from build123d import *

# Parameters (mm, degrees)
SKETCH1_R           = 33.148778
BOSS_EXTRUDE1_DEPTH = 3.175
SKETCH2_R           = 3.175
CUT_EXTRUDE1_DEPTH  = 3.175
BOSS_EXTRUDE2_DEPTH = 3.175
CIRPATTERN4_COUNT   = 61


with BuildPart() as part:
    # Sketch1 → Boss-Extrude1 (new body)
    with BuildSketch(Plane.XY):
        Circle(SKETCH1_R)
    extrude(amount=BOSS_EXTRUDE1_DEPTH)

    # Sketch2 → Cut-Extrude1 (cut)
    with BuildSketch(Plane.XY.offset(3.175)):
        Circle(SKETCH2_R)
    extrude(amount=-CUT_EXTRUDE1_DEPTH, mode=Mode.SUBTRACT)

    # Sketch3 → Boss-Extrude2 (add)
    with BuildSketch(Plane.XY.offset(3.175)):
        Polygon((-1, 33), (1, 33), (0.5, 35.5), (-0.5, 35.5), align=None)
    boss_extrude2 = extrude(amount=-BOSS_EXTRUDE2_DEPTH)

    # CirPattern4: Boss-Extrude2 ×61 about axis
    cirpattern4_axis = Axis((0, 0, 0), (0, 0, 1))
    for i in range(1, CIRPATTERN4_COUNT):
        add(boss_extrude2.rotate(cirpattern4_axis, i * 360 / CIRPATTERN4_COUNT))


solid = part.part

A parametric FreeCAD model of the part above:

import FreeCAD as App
import Part
import Sketcher

V = App.Vector
Q = App.Units.Quantity


def add_polygon(sketch, points):
    """Adds a closed chain of lines whose ends are joined by coincident constraints."""
    first, n = sketch.GeometryCount, len(points)
    for a, b in zip(points, points[1:] + points[:1]):
        sketch.addGeometry(Part.LineSegment(App.Vector(*a, 0), App.Vector(*b, 0)), False)
    for i in range(n):
        sketch.addConstraint(Sketcher.Constraint("Coincident", first + i, 2, first + (i + 1) % n, 1))

doc = App.newDocument("Part")
body = doc.addObject("PartDesign::Body", "Body")

# Sketch on XY plane
sketch1 = doc.addObject("Sketcher::SketchObject", "Sketch")
body.addObject(sketch1)
sketch1.AttachmentSupport = (doc.XY_Plane, [""])
sketch1.MapMode = "FlatFace"
sketch1.addGeometry(Part.Circle(V(0, 0, 0), V(0, 0, 1), 33), False)
sketch1.addConstraint(Sketcher.Constraint("Coincident", 0, 3, -1, 1))
sketch1.addConstraint(Sketcher.Constraint("Diameter", 0, Q("66.297556 mm")))
pad1 = doc.addObject("PartDesign::Pad", "Pad")
body.addObject(pad1)
pad1.Profile = sketch1
pad1.Length = 3.175

# Sketch on XY plane
sketch2 = doc.addObject("Sketcher::SketchObject", "Sketch001")
body.addObject(sketch2)
sketch2.AttachmentSupport = (doc.XY_Plane, [""])
sketch2.MapMode = "FlatFace"
sketch2.AttachmentOffset = App.Placement(V(0, 0, 3.175), App.Rotation())
sketch2.addGeometry(Part.Circle(V(0, 0, 0), V(0, 0, 1), 3.2), False)
sketch2.addConstraint(Sketcher.Constraint("Coincident", 0, 3, -1, 1))
sketch2.addConstraint(Sketcher.Constraint("Diameter", 0, Q("6.35 mm")))
pocket1 = doc.addObject("PartDesign::Pocket", "Pocket")
body.addObject(pocket1)
pocket1.Profile = sketch2
pocket1.Length = 3.175

# Sketch on XY plane
sketch3 = doc.addObject("Sketcher::SketchObject", "Sketch002")
body.addObject(sketch3)
sketch3.AttachmentSupport = (doc.XY_Plane, [""])
sketch3.MapMode = "FlatFace"
sketch3.AttachmentOffset = App.Placement(V(0, 0, 3.175), App.Rotation())
add_polygon(sketch3, [(-1, 33), (1, 33), (0.5, 35.5), (-0.5, 35.5)])  # lines 0-3
sketch3.addConstraint(Sketcher.Constraint("Horizontal", 0))
sketch3.addConstraint(Sketcher.Constraint("Horizontal", 2))
sketch3.addConstraint(Sketcher.Constraint("Equal", 1, 3))
sketch3.addConstraint(Sketcher.Constraint("DistanceX", 0, 1, 0, 2, Q("2 mm")))
sketch3.addConstraint(Sketcher.Constraint("DistanceX", 2, 2, 2, 1, Q("1 mm")))
sketch3.addConstraint(Sketcher.Constraint("DistanceX", -1, 1, 0, 2, Q("1 mm")))
sketch3.addConstraint(Sketcher.Constraint("DistanceY", -1, 1, 0, 2, Q("33 mm")))
sketch3.addConstraint(Sketcher.Constraint("DistanceY", -1, 1, 1, 2, Q("35.5 mm")))
pad2 = doc.addObject("PartDesign::Pad", "Pad001")
body.addObject(pad2)
pad2.Profile = sketch3
pad2.Length = 3.175
pad2.Reversed = True
doc.recompute()

polarpattern = doc.addObject("PartDesign::PolarPattern", "PolarPattern")
body.addObject(polarpattern)
polarpattern.Originals = [pad2]
polarpattern.Axis = (doc.Z_Axis, [""])
polarpattern.Angle = 360
polarpattern.Occurrences = 61
body.Tip = polarpattern

doc.recompute()
